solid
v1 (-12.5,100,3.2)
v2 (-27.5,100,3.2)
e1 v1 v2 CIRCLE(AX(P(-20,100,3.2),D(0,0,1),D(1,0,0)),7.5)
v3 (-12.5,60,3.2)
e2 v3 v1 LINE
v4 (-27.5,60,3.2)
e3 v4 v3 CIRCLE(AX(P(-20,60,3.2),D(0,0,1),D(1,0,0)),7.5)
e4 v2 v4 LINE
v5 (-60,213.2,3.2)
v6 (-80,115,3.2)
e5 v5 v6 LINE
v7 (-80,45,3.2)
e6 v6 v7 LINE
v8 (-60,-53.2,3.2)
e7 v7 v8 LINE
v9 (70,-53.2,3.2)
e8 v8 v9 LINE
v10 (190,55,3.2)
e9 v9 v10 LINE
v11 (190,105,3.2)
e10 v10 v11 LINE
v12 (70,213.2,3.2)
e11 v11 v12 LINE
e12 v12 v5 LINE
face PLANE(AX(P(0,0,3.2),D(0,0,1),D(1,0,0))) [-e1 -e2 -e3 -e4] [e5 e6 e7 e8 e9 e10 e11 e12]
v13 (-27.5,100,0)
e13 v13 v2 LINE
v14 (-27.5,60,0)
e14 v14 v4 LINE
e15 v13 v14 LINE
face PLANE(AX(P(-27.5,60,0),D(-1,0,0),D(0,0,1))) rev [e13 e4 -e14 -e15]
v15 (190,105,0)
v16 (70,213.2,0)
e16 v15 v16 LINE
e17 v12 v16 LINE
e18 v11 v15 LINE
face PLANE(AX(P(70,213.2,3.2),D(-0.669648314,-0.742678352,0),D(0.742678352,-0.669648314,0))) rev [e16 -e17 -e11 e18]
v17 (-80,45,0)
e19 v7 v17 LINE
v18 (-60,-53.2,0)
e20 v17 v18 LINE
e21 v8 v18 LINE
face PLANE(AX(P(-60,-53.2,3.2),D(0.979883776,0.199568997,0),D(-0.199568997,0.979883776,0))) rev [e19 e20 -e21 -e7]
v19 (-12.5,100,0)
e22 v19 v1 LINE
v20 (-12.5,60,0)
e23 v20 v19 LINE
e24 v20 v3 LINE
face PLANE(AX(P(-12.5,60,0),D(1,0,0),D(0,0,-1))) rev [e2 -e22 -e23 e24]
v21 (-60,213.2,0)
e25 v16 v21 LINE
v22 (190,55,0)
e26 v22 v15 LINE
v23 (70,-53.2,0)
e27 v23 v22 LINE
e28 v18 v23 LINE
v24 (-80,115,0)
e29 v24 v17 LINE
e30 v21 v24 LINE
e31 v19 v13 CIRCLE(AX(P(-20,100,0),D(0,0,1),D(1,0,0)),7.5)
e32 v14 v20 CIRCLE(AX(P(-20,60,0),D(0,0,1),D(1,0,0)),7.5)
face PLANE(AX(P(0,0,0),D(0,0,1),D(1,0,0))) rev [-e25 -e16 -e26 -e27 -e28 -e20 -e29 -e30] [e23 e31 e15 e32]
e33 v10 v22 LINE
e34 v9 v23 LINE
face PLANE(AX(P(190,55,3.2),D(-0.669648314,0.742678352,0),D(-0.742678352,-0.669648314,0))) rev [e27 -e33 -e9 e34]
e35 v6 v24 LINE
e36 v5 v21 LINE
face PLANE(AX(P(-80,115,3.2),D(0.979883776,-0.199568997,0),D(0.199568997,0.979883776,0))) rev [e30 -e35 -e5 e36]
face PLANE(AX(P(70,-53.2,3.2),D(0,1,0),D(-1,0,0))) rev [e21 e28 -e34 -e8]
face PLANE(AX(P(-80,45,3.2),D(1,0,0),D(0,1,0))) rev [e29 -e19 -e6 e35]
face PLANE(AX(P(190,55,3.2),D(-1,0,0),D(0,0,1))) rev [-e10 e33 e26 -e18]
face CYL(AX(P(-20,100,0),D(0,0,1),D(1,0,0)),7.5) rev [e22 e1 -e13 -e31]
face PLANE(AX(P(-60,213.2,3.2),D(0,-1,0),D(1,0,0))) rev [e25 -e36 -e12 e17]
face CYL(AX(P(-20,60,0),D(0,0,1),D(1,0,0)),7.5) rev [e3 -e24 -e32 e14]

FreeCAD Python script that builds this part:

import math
import FreeCAD as App
import Part
import Sketcher


def add_polygon(sketch, points):
    """Adds a closed chain of lines whose ends are joined by coincident constraints."""
    first, n = sketch.GeometryCount, len(points)
    for a, b in zip(points, points[1:] + points[:1]):
        sketch.addGeometry(Part.LineSegment(App.Vector(*a, 0), App.Vector(*b, 0)), False)
    for i in range(n):
        sketch.addConstraint(Sketcher.Constraint("Coincident", first + i, 2, first + (i + 1) % n, 1))

doc = App.newDocument("Part")
body = doc.addObject("PartDesign::Body", "Body")

# Sketch on XY plane
sketch1 = body.newObject("Sketcher::SketchObject", "Sketch")
sketch1.AttachmentSupport = (doc.getObject("XY_Plane"), [""])
sketch1.MapMode = "FlatFace"
add_polygon(sketch1, [(-60, -53), (70, -53), (190, 55), (190, 105), (70, 213), (-60, 213), (-80, 115), (-80, 45)])  # lines 0-7
sketch1.addConstraint(Sketcher.Constraint("Horizontal", 0))
sketch1.addConstraint(Sketcher.Constraint("Vertical", 2))
sketch1.addConstraint(Sketcher.Constraint("Horizontal", 4))
sketch1.addConstraint(Sketcher.Constraint("Vertical", 6))
sketch1.addConstraint(Sketcher.Constraint("Vertical", 0, 2, 3, 2))
sketch1.addConstraint(Sketcher.Constraint("Vertical", 4, 2, 7, 2))
sketch1.addConstraint(Sketcher.Constraint("Equal", 1, 3))
sketch1.addConstraint(Sketcher.Constraint("Equal", 5, 7))
sketch1.addConstraint(Sketcher.Constraint("DistanceX", 0, 1, 0, 2, 130.0))
sketch1.addConstraint(Sketcher.Constraint("DistanceY", 2, 1, 2, 2, 50.0))
sketch1.addConstraint(Sketcher.Constraint("DistanceY", 6, 2, 6, 1, 70.0))
sketch1.addConstraint(Sketcher.Constraint("DistanceX", -1, 1, 0, 2, 70.0))
sketch1.addConstraint(Sketcher.Constraint("DistanceX", -1, 1, 1, 2, 190.0))
sketch1.addConstraint(Sketcher.Constraint("DistanceY", -1, 1, 1, 2, 55.0))
sketch1.addConstraint(Sketcher.Constraint("DistanceX", 5, 2, -1, 1, 80.0))
sketch1.addConstraint(Sketcher.Constraint("DistanceY", 0, 2, -1, 1, 53.2))
pad1 = body.newObject("PartDesign::Pad", "Pad")
pad1.Profile = sketch1
pad1.Length = 3.2

# Sketch on XY plane
sketch2 = body.newObject("Sketcher::SketchObject", "Sketch001")
sketch2.AttachmentSupport = (doc.getObject("XY_Plane"), [""])
sketch2.MapMode = "FlatFace"
sketch2.AttachmentOffset = App.Placement(App.Vector(0, 0, 3.2), App.Rotation())
sketch2.addGeometry(Part.LineSegment(App.Vector(-28, 100, 0), App.Vector(-28, 60, 0)), False)
sketch2.addGeometry(Part.ArcOfCircle(Part.Circle(App.Vector(-20, 60, 0), App.Vector(0, 0, 1), 8), math.radians(180), math.radians(360)), False)
sketch2.addGeometry(Part.LineSegment(App.Vector(-12, 60, 0), App.Vector(-12, 100, 0)), False)
sketch2.addGeometry(Part.ArcOfCircle(Part.Circle(App.Vector(-20, 100, 0), App.Vector(0, 0, 1), 8), math.radians(0), math.radians(180)), False)
sketch2.addConstraint(Sketcher.Constraint("Tangent", 0, 2, 1, 1))
sketch2.addConstraint(Sketcher.Constraint("Tangent", 1, 2, 2, 1))
sketch2.addConstraint(Sketcher.Constraint("Tangent", 2, 2, 3, 1))
sketch2.addConstraint(Sketcher.Constraint("Tangent", 3, 2, 0, 1))
sketch2.addConstraint(Sketcher.Constraint("Vertical", 0))
sketch2.addConstraint(Sketcher.Constraint("Vertical", 2))
sketch2.addConstraint(Sketcher.Constraint("Radius", 1, 7.5))
sketch2.addConstraint(Sketcher.Constraint("DistanceY", 0, 2, 0, 1, 40.0))
sketch2.addConstraint(Sketcher.Constraint("DistanceX", 1, 3, -1, 1, 20.0))
sketch2.addConstraint(Sketcher.Constraint("DistanceY", -1, 1, 1, 3, 60.0))
pocket1 = body.newObject("PartDesign::Pocket", "Pocket")
pocket1.Profile = sketch2
pocket1.Length = 3.2

doc.recompute()
